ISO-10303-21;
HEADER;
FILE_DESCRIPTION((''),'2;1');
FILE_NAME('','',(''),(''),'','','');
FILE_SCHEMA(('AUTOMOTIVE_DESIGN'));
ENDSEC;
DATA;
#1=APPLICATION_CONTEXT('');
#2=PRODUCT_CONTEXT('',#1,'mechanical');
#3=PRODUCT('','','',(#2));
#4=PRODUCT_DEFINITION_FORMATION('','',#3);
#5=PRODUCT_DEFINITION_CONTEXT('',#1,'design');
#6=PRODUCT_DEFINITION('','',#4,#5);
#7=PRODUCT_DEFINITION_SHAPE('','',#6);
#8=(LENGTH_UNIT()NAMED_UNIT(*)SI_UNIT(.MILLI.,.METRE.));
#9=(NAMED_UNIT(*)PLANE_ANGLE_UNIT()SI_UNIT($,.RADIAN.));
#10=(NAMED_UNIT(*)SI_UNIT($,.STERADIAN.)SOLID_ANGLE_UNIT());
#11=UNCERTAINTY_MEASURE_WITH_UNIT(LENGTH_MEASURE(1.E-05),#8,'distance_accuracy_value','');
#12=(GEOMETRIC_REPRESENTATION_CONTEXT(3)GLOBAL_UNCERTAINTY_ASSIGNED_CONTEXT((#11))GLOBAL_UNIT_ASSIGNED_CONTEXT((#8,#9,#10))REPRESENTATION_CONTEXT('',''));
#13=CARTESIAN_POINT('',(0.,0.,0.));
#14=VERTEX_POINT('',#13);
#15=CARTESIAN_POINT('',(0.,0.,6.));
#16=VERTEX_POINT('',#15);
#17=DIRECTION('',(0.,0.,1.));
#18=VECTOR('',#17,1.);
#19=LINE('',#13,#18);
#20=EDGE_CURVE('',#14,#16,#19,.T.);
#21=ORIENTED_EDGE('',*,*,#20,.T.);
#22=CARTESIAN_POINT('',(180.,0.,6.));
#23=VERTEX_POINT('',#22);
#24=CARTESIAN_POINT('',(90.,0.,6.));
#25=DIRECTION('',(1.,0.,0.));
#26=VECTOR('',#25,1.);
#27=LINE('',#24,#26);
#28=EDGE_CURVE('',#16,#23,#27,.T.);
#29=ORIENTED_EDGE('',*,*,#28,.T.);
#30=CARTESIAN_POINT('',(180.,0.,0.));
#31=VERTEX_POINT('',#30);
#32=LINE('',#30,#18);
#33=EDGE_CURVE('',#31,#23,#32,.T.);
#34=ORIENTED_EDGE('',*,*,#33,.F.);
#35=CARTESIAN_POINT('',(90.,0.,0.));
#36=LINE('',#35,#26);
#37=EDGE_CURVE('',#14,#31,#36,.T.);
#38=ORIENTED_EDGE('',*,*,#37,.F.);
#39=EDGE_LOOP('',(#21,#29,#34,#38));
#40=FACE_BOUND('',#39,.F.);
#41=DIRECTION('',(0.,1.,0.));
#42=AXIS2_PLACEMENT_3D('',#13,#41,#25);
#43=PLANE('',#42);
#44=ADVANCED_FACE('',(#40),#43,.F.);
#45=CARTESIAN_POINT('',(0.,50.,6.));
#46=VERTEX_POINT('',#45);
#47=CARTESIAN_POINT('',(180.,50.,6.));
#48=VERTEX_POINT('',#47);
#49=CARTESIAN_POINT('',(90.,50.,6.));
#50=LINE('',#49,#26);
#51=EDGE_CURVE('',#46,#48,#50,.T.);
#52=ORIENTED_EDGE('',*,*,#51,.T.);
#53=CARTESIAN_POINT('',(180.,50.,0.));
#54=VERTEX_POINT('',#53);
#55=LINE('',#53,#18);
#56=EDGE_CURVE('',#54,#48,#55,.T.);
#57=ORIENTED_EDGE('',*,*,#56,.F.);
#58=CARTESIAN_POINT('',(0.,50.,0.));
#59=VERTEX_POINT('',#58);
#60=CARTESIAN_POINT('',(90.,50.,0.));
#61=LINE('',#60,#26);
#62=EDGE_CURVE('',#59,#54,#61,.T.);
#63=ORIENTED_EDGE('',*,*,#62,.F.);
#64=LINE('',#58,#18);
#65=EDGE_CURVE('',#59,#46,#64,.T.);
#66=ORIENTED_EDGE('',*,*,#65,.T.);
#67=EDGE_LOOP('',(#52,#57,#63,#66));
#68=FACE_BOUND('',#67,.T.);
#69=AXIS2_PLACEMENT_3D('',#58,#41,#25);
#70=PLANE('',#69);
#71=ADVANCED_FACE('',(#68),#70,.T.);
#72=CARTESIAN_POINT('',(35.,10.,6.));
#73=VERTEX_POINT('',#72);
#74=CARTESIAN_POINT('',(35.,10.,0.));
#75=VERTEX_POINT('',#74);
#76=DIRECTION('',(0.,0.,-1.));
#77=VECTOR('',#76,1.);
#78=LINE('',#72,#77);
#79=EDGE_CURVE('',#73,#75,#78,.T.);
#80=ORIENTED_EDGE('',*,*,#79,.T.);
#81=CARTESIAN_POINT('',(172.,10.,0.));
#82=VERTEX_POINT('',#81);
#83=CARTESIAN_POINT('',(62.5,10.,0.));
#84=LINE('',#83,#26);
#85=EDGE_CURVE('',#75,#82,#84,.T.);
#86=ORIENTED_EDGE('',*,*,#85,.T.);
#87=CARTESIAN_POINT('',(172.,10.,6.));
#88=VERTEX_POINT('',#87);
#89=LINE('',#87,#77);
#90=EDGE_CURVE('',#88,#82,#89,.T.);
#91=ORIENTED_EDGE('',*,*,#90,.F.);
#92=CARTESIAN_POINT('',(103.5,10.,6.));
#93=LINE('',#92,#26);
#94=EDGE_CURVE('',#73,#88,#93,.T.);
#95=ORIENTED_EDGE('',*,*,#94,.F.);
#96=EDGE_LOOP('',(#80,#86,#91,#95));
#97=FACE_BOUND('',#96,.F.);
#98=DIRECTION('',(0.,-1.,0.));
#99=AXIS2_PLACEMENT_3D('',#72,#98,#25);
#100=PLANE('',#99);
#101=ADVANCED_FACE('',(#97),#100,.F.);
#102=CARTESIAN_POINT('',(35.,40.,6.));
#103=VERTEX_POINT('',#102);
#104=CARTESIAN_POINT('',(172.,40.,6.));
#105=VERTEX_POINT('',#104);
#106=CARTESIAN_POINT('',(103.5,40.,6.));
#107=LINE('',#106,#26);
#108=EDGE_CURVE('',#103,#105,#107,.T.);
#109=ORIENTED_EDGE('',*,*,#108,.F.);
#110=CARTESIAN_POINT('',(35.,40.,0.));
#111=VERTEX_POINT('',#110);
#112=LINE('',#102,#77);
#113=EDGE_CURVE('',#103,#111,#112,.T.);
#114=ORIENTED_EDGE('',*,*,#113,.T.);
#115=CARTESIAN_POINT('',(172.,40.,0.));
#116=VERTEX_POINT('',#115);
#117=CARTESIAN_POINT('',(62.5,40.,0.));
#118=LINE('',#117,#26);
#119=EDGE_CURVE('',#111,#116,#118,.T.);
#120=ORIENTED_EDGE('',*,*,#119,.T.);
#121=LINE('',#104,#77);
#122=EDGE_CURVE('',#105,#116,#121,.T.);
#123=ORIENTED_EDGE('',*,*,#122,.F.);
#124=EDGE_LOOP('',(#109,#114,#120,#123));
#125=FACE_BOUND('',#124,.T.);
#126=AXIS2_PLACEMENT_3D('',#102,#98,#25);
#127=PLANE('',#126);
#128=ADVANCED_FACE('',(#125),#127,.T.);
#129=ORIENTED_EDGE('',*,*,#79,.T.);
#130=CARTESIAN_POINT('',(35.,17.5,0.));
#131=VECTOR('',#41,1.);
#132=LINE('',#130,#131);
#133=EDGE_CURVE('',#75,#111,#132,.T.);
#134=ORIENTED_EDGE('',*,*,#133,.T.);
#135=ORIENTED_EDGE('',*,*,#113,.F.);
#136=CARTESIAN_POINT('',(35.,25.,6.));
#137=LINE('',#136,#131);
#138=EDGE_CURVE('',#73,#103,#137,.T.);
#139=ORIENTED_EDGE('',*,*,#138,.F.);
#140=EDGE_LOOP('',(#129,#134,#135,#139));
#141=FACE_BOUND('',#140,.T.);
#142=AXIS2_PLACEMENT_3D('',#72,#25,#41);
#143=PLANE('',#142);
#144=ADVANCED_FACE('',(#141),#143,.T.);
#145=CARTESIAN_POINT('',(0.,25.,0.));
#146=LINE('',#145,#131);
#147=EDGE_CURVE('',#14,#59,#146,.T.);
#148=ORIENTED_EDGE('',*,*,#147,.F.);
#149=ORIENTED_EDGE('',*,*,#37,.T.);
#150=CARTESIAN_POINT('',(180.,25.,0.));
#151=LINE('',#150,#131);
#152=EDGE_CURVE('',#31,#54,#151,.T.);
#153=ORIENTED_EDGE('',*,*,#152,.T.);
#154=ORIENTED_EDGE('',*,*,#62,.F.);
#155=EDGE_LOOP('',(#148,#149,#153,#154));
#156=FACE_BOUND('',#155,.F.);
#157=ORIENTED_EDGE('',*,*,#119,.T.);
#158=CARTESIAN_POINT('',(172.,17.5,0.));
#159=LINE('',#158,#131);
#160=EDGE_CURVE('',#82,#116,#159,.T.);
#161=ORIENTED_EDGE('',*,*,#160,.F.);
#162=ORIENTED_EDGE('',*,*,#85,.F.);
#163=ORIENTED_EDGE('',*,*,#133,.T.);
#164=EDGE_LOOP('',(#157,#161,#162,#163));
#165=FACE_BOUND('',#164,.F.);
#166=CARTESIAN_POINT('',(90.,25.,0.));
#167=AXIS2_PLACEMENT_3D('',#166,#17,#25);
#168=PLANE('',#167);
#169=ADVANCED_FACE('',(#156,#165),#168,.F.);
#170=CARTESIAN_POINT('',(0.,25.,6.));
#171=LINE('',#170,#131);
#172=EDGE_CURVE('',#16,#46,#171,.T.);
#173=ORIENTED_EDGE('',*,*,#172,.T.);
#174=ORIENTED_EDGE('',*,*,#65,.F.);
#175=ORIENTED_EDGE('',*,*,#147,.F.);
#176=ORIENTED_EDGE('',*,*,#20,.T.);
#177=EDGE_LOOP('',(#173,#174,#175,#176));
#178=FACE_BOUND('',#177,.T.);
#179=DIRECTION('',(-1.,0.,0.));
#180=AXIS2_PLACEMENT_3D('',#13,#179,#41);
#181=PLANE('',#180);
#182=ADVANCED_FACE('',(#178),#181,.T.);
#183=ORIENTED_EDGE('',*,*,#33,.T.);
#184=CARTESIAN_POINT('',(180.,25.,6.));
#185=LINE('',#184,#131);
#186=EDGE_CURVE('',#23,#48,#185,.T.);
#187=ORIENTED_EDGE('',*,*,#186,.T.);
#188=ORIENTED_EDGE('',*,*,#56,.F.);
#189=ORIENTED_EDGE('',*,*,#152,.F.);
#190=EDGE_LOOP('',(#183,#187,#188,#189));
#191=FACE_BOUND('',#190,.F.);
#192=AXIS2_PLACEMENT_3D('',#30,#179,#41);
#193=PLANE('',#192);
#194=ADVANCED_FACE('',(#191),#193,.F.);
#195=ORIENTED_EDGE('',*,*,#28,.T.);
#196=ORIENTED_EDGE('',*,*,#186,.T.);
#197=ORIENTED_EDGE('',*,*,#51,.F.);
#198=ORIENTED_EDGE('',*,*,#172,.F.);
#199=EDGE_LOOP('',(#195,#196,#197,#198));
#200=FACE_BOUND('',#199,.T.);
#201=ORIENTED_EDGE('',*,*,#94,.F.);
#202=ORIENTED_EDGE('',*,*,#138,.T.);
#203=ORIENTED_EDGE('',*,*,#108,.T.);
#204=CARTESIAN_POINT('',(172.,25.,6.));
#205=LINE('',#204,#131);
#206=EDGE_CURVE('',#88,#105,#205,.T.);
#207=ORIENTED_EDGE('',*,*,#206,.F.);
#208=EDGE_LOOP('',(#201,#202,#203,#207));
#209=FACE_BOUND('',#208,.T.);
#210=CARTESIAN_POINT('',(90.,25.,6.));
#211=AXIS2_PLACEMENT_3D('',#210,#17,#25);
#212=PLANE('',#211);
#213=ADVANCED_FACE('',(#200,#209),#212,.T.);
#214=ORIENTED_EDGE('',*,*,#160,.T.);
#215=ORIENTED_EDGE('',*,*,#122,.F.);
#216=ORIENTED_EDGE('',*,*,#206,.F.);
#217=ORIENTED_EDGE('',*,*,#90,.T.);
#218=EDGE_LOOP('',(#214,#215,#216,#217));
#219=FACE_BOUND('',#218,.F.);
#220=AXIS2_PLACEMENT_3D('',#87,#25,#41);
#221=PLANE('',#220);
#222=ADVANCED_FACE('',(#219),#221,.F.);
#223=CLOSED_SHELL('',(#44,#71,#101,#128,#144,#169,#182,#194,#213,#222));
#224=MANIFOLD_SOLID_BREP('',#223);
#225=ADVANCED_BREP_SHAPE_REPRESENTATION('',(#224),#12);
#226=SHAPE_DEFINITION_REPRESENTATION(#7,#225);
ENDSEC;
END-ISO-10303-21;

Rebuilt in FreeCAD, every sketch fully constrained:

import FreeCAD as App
import Part
import Sketcher
from FreeCAD import Vector


def add_polygon(sketch, points):
    """Adds a closed chain of lines whose ends are joined by coincident constraints."""
    first, n = sketch.GeometryCount, len(points)
    for a, b in zip(points, points[1:] + points[:1]):
        sketch.addGeometry(Part.LineSegment(App.Vector(*a, 0), App.Vector(*b, 0)), False)
    for i in range(n):
        sketch.addConstraint(Sketcher.Constraint("Coincident", first + i, 2, first + (i + 1) % n, 1))

doc = App.newDocument("Part")
params = doc.addObject("Spreadsheet::Sheet", "Params")
for row, (alias, value) in enumerate([
    ("sketch1_width", "180 mm"),
    ("sketch1_height", "50 mm"),
    ("pad1_length", "6 mm"),
    ("sketch2_width", "137 mm"),
    ("sketch2_height", "30 mm"),
    ("pocket1_length", "10 mm"),
], start=1):
    params.set(f"A{row}", alias)
    params.set(f"B{row}", "=" + value)
    params.setAlias(f"B{row}", alias)

body = doc.addObject("PartDesign::Body", "Body")

# Sketch on XY plane
sketch1 = doc.addObject("Sketcher::SketchObject", "Sketch")
body.addObject(sketch1)
sketch1.AttachmentSupport = (doc.XY_Plane, [""])
sketch1.MapMode = "FlatFace"
add_polygon(sketch1, [(0, 50), (0, 0), (180, 0), (180, 50)])  # lines 0-3
sketch1.addConstraint([
    Sketcher.Constraint("Vertical", 0),
    Sketcher.Constraint("Horizontal", 1),
    Sketcher.Constraint("Vertical", 2),
    Sketcher.Constraint("Horizontal", 3),
    Sketcher.Constraint("Coincident", 0, 2, -1, 1),
    Sketcher.Constraint("DistanceX", 1, 1, 1, 2, 180.0),
    Sketcher.Constraint("DistanceY", 0, 2, 0, 1, 50.0),
])
sketch1.setExpression("Constraints[9]", "Params.sketch1_width")
sketch1.setExpression("Constraints[10]", "Params.sketch1_height")
pad1 = doc.addObject("PartDesign::Pad", "Pad")
body.addObject(pad1)
pad1.Profile = sketch1
pad1.setExpression("Length", "Params.pad1_length")

# Sketch on XY plane
sketch2 = doc.addObject("Sketcher::SketchObject", "Sketch001")
body.addObject(sketch2)
sketch2.AttachmentSupport = (doc.XY_Plane, [""])
sketch2.MapMode = "FlatFace"
sketch2.AttachmentOffset = App.Placement(Vector(0, 0, 6), App.Rotation())
add_polygon(sketch2, [(35, 40), (35, 10), (172, 10), (172, 40)])  # lines 0-3
sketch2.addConstraint([
    Sketcher.Constraint("Vertical", 0),
    Sketcher.Constraint("Horizontal", 1),
    Sketcher.Constraint("Vertical", 2),
    Sketcher.Constraint("Horizontal", 3),
    Sketcher.Constraint("DistanceX", 1, 1, 1, 2, 137.0),
    Sketcher.Constraint("DistanceY", 0, 2, 0, 1, 30.0),
    Sketcher.Constraint("DistanceX", -1, 1, 0, 2, 35.0),
    Sketcher.Constraint("DistanceY", -1, 1, 0, 2, 10.0),
])
sketch2.setExpression("Constraints[8]", "Params.sketch2_width")
sketch2.setExpression("Constraints[9]", "Params.sketch2_height")
pocket1 = doc.addObject("PartDesign::Pocket", "Pocket")
body.addObject(pocket1)
pocket1.Profile = sketch2
pocket1.setExpression("Length", "Params.pocket1_length")

doc.recompute()
